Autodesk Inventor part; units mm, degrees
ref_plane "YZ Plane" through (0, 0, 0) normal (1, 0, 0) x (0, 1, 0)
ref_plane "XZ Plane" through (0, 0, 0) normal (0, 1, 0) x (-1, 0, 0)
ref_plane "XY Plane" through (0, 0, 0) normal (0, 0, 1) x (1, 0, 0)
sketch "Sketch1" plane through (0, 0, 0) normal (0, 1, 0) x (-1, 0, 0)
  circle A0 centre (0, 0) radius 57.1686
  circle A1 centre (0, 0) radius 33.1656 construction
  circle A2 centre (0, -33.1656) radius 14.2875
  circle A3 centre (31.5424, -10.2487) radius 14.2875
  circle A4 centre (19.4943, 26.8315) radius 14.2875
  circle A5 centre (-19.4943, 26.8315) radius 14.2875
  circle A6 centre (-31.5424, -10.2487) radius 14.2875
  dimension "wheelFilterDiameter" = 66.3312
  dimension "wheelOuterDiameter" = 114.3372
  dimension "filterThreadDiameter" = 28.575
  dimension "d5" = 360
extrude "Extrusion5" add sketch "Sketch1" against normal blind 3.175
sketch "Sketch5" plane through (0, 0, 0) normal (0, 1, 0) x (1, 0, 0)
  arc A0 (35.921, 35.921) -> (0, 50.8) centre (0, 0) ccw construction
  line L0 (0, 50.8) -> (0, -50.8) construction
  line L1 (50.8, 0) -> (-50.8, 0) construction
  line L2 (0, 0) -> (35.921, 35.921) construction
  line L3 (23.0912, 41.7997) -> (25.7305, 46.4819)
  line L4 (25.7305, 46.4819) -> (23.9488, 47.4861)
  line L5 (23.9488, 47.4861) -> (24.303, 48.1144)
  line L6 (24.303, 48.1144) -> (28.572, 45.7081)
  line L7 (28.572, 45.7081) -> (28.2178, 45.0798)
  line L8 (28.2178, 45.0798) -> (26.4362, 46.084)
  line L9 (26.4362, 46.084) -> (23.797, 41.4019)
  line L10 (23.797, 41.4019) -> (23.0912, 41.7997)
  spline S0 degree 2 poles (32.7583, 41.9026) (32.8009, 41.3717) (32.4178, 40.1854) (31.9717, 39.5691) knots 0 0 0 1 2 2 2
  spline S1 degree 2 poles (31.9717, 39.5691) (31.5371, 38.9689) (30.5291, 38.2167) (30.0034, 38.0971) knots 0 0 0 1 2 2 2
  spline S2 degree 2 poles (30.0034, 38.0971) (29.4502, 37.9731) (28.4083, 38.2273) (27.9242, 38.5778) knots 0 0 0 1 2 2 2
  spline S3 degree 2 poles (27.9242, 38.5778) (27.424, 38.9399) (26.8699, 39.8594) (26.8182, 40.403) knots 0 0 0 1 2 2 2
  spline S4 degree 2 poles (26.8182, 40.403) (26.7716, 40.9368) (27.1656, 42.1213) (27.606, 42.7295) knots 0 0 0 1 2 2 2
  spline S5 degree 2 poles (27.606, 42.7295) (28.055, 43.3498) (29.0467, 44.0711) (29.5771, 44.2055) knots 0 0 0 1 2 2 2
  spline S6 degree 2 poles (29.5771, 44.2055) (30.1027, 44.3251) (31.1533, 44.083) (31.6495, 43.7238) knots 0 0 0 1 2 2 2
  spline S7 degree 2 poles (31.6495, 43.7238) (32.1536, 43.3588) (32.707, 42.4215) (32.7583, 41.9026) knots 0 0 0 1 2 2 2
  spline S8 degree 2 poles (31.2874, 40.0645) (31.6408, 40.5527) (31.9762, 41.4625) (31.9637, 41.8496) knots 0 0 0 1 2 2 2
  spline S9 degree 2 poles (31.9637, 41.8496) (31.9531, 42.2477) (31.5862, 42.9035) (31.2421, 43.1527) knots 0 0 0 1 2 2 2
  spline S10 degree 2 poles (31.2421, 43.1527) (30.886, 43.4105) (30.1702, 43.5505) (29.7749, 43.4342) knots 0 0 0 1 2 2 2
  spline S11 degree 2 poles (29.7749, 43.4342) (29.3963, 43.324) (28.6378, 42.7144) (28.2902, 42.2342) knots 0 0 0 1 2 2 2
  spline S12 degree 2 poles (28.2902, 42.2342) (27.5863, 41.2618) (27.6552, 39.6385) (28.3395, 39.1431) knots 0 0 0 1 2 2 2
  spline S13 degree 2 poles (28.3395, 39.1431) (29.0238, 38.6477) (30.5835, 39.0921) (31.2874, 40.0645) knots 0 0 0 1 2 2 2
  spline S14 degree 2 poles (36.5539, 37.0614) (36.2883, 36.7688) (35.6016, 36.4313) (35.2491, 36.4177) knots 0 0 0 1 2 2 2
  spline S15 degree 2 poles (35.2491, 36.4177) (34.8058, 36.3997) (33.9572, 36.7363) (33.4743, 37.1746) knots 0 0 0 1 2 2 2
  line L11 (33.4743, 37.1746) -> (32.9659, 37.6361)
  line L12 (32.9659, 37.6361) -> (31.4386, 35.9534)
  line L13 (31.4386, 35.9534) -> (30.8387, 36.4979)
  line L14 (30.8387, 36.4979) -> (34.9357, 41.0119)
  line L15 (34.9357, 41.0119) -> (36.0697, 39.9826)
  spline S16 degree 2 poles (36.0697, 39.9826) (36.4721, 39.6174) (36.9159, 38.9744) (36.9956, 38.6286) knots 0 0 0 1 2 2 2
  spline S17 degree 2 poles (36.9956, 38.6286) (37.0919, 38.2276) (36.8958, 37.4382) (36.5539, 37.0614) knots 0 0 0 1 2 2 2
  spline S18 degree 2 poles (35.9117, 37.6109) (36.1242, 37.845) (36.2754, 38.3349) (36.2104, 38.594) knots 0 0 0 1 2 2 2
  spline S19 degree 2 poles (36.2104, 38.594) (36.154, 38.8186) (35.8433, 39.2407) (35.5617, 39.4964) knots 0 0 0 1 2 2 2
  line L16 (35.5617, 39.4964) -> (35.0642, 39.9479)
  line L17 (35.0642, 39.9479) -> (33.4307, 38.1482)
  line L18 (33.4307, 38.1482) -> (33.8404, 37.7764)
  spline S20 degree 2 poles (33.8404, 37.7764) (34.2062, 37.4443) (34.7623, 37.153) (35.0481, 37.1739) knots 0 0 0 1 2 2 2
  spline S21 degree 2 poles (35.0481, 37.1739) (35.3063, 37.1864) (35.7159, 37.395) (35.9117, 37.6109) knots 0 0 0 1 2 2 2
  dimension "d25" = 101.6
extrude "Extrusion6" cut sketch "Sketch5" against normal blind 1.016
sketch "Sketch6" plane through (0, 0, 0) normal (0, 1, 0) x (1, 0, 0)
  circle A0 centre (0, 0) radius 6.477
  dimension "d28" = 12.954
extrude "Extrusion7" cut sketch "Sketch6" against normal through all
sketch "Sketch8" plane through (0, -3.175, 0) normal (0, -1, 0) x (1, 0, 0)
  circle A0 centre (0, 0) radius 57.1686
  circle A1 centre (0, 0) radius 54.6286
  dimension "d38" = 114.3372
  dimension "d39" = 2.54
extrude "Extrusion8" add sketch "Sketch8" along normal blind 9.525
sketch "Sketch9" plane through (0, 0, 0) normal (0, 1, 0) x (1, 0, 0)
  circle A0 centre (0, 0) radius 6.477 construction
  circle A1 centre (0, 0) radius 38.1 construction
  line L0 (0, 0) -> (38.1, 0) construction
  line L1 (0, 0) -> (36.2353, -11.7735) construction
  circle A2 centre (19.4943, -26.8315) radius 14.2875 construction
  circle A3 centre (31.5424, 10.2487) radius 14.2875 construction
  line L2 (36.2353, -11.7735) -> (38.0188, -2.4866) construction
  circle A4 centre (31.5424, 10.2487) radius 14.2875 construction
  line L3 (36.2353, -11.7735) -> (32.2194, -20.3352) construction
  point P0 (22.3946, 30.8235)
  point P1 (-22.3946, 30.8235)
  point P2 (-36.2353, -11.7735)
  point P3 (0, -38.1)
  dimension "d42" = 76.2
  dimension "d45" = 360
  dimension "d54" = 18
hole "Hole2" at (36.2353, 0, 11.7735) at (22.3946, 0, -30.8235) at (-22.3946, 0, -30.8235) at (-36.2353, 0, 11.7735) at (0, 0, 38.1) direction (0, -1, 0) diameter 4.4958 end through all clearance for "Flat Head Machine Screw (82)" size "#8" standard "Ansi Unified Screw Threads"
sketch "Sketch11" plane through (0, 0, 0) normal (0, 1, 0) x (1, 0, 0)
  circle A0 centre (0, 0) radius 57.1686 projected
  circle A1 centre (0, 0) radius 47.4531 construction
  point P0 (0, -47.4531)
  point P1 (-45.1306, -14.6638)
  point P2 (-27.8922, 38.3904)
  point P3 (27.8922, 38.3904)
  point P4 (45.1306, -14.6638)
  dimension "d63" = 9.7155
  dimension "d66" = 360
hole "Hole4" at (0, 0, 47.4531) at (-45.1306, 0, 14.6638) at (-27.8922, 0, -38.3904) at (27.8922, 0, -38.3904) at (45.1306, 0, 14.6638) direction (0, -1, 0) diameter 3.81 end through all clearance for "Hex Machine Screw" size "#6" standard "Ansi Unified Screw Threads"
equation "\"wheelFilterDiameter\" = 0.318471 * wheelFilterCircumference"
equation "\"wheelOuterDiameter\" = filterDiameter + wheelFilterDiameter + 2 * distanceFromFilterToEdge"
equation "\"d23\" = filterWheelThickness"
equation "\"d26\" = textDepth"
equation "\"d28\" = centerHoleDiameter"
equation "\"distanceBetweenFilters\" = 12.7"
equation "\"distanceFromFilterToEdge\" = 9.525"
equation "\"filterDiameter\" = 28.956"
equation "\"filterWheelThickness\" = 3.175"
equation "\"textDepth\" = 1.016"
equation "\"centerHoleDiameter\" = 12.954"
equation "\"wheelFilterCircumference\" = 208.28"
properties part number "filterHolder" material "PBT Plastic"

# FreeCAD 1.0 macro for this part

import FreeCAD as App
import Part
import Sketcher

V = App.Vector
Q = App.Units.Quantity

doc = App.newDocument("Part")
body = doc.addObject("PartDesign::Body", "Body")

# Sketch on XZ plane
sketch1 = body.newObject("Sketcher::SketchObject", "Sketch")
sketch1.AttachmentSupport = (doc.getObject("XZ_Plane"), [""])
sketch1.MapMode = "FlatFace"
sketch1.addGeometry([
    Part.Circle(V(0, 0, 0), V(0, 0, 1), 57),  # 0
    Part.Circle(V(32, -10, 0), V(0, 0, 1), 14),  # 1
    Part.Circle(V(0, -33, 0), V(0, 0, 1), 14),  # 2
    Part.Circle(V(-32, -10, 0), V(0, 0, 1), 14),  # 3
    Part.Circle(V(19, 27, 0), V(0, 0, 1), 14),  # 4
    Part.Circle(V(-19, 27, 0), V(0, 0, 1), 14),  # 5
], False)
sketch1.addConstraint([
    Sketcher.Constraint("Coincident", 0, 3, -1, 1),
    Sketcher.Constraint("Equal", 1, 2),
    Sketcher.Constraint("Equal", 2, 3),
    Sketcher.Constraint("Equal", 3, 4),
    Sketcher.Constraint("Equal", 4, 5),
    Sketcher.Constraint("Symmetric", 1, 3, 3, 3, -2),
    Sketcher.Constraint("Symmetric", 4, 3, 5, 3, -2),
    Sketcher.Constraint("PointOnObject", 2, 3, -2),
    Sketcher.Constraint("Diameter", 1, Q("1.125 in")),
    Sketcher.Constraint("Diameter", 0, 114.3372),
    Sketcher.Constraint("DistanceY", 1, 3, -1, 1, Q("0.4035 in")),
    Sketcher.Constraint("DistanceX", -1, 1, 4, 3, Q("0.7675 in")),
    Sketcher.Constraint("DistanceY", 2, 3, 4, 3, Q("2.3621 in")),
    Sketcher.Constraint("DistanceX", -1, 1, 1, 3, 31.5424),
    Sketcher.Constraint("DistanceY", 2, 3, -1, 1, 33.1656),
])
pad1 = body.newObject("PartDesign::Pad", "Pad")
pad1.Profile = sketch1
pad1.Length = Q("0.125 in")

# Sketch on XZ plane
sketch2 = body.newObject("Sketcher::SketchObject", "Sketch001")
sketch2.AttachmentSupport = (doc.getObject("XZ_Plane"), [""])
sketch2.MapMode = "FlatFace"
sketch2.addGeometry([
    Part.LineSegment(V(25.7305, -46.4819, 0), V(23.0912, -41.7997, 0)),  # 0
    Part.LineSegment(V(23.0912, -41.7997, 0), V(23.797, -41.4019, 0)),  # 1
    Part.LineSegment(V(23.797, -41.4019, 0), V(26.4362, -46.084, 0)),  # 2
    Part.LineSegment(V(26.4362, -46.084, 0), V(28.2178, -45.0798, 0)),  # 3
    Part.LineSegment(V(28.2178, -45.0798, 0), V(28.572, -45.7081, 0)),  # 4
    Part.LineSegment(V(28.572, -45.7081, 0), V(24.303, -48.1144, 0)),  # 5
    Part.LineSegment(V(24.303, -48.1144, 0), V(23.9488, -47.4861, 0)),  # 6
    Part.LineSegment(V(23.9488, -47.4861, 0), V(25.7305, -46.4819, 0)),  # 7
    Part.BSplineCurve([V(32.7583, -41.9026, 0), V(32.8009, -41.3717, 0), V(32.4178, -40.1854, 0), V(31.9717, -39.5691, 0)], [3, 1, 3], [0, 1, 2], False, 2, [1, 1, 1, 1], False),  # 8
    Part.BSplineCurve([V(31.6495, -43.7238, 0), V(32.1536, -43.3588, 0), V(32.707, -42.4215, 0), V(32.7583, -41.9026, 0)], [3, 1, 3], [0, 1, 2], False, 2, [1, 1, 1, 1], False),  # 9
    Part.BSplineCurve([V(29.5771, -44.2055, 0), V(30.1027, -44.3251, 0), V(31.1533, -44.083, 0), V(31.6495, -43.7238, 0)], [3, 1, 3], [0, 1, 2], False, 2, [1, 1, 1, 1], False),  # 10
    Part.BSplineCurve([V(27.606, -42.7295, 0), V(28.055, -43.3498, 0), V(29.0467, -44.0711, 0), V(29.5771, -44.2055, 0)], [3, 1, 3], [0, 1, 2], False, 2, [1, 1, 1, 1], False),  # 11
    Part.BSplineCurve([V(26.8182, -40.403, 0), V(26.7716, -40.9368, 0), V(27.1656, -42.1213, 0), V(27.606, -42.7295, 0)], [3, 1, 3], [0, 1, 2], False, 2, [1, 1, 1, 1], False),  # 12
    Part.BSplineCurve([V(27.9242, -38.5778, 0), V(27.424, -38.9399, 0), V(26.8699, -39.8594, 0), V(26.8182, -40.403, 0)], [3, 1, 3], [0, 1, 2], False, 2, [1, 1, 1, 1], False),  # 13
    Part.BSplineCurve([V(30.0034, -38.0971, 0), V(29.4502, -37.9731, 0), V(28.4083, -38.2273, 0), V(27.9242, -38.5778, 0)], [3, 1, 3], [0, 1, 2], False, 2, [1, 1, 1, 1], False),  # 14
    Part.BSplineCurve([V(31.9717, -39.5691, 0), V(31.5371, -38.9689, 0), V(30.5291, -38.2167, 0), V(30.0034, -38.0971, 0)], [3, 1, 3], [0, 1, 2], False, 2, [1, 1, 1, 1], False),  # 15
    Part.BSplineCurve([V(31.2874, -40.0645, 0), V(31.6408, -40.5527, 0), V(31.9762, -41.4625, 0), V(31.9637, -41.8496, 0)], [3, 1, 3], [0, 1, 2], False, 2, [1, 1, 1, 1], False),  # 16
    Part.BSplineCurve([V(28.3395, -39.1431, 0), V(29.0238, -38.6477, 0), V(30.5835, -39.0921, 0), V(31.2874, -40.0645, 0)], [3, 1, 3], [0, 1, 2], False, 2, [1, 1, 1, 1], False),  # 17
    Part.BSplineCurve([V(28.2902, -42.2342, 0), V(27.5863, -41.2618, 0), V(27.6552, -39.6385, 0), V(28.3395, -39.1431, 0)], [3, 1, 3], [0, 1, 2], False, 2, [1, 1, 1, 1], False),  # 18
    Part.BSplineCurve([V(29.7749, -43.4342, 0), V(29.3963, -43.324, 0), V(28.6378, -42.7144, 0), V(28.2902, -42.2342, 0)], [3, 1, 3], [0, 1, 2], False, 2, [1, 1, 1, 1], False),  # 19
    Part.BSplineCurve([V(31.2421, -43.1527, 0), V(30.886, -43.4105, 0), V(30.1702, -43.5505, 0), V(29.7749, -43.4342, 0)], [3, 1, 3], [0, 1, 2], False, 2, [1, 1, 1, 1], False),  # 20
    Part.BSplineCurve([V(31.9637, -41.8496, 0), V(31.9531, -42.2477, 0), V(31.5862, -42.9035, 0), V(31.2421, -43.1527, 0)], [3, 1, 3], [0, 1, 2], False, 2, [1, 1, 1, 1], False),  # 21
    Part.BSplineCurve([V(36.5539, -37.0614, 0), V(36.2883, -36.7688, 0), V(35.6016, -36.4313, 0), V(35.2491, -36.4177, 0)], [3, 1, 3], [0, 1, 2], False, 2, [1, 1, 1, 1], False),  # 22
    Part.BSplineCurve([V(36.9956, -38.6286, 0), V(37.0919, -38.2276, 0), V(36.8958, -37.4382, 0), V(36.5539, -37.0614, 0)], [3, 1, 3], [0, 1, 2], False, 2, [1, 1, 1, 1], False),  # 23
    Part.BSplineCurve([V(36.0697, -39.9826, 0), V(36.4721, -39.6174, 0), V(36.9159, -38.9744, 0), V(36.9956, -38.6286, 0)], [3, 1, 3], [0, 1, 2], False, 2, [1, 1, 1, 1], False),  # 24
    Part.LineSegment(V(36.0697, -39.9826, 0), V(34.9357, -41.0119, 0)),  # 25
    Part.LineSegment(V(34.9357, -41.0119, 0), V(30.8387, -36.4979, 0)),  # 26
    Part.LineSegment(V(30.8387, -36.4979, 0), V(31.4386, -35.9534, 0)),  # 27
    Part.LineSegment(V(31.4386, -35.9534, 0), V(32.9659, -37.6361, 0)),  # 28
    Part.LineSegment(V(32.9659, -37.6361, 0), V(33.4743, -37.1746, 0)),  # 29
    Part.BSplineCurve([V(35.2491, -36.4177, 0), V(34.8058, -36.3997, 0), V(33.9572, -36.7363, 0), V(33.4743, -37.1746, 0)], [3, 1, 3], [0, 1, 2], False, 2, [1, 1, 1, 1], False),  # 30
    Part.BSplineCurve([V(35.9117, -37.6109, 0), V(36.1242, -37.845, 0), V(36.2754, -38.3349, 0), V(36.2104, -38.594, 0)], [3, 1, 3], [0, 1, 2], False, 2, [1, 1, 1, 1], False),  # 31
    Part.BSplineCurve([V(35.0481, -37.1739, 0), V(35.3063, -37.1864, 0), V(35.7159, -37.395, 0), V(35.9117, -37.6109, 0)], [3, 1, 3], [0, 1, 2], False, 2, [1, 1, 1, 1], False),  # 32
    Part.BSplineCurve([V(33.8404, -37.7764, 0), V(34.2062, -37.4443, 0), V(34.7623, -37.153, 0), V(35.0481, -37.1739, 0)], [3, 1, 3], [0, 1, 2], False, 2, [1, 1, 1, 1], False),  # 33
    Part.LineSegment(V(33.8404, -37.7764, 0), V(33.4307, -38.1482, 0)),  # 34
    Part.LineSegment(V(33.4307, -38.1482, 0), V(35.0642, -39.9479, 0)),  # 35
    Part.LineSegment(V(35.0642, -39.9479, 0), V(35.5617, -39.4964, 0)),  # 36
    Part.BSplineCurve([V(36.2104, -38.594, 0), V(36.154, -38.8186, 0), V(35.8433, -39.2407, 0), V(35.5617, -39.4964, 0)], [3, 1, 3], [0, 1, 2], False, 2, [1, 1, 1, 1], False),  # 37
], False)
sketch2.addConstraint([
    Sketcher.Constraint("Block", 8),
    Sketcher.Constraint("Block", 9),
    Sketcher.Constraint("Block", 10),
    Sketcher.Constraint("Block", 11),
    Sketcher.Constraint("Block", 12),
    Sketcher.Constraint("Block", 13),
    Sketcher.Constraint("Block", 14),
    Sketcher.Constraint("Block", 15),
    Sketcher.Constraint("Block", 16),
    Sketcher.Constraint("Block", 17),
    Sketcher.Constraint("Block", 18),
    Sketcher.Constraint("Block", 19),
    Sketcher.Constraint("Block", 20),
    Sketcher.Constraint("Block", 21),
    Sketcher.Constraint("Block", 22),
    Sketcher.Constraint("Block", 23),
    Sketcher.Constraint("Block", 24),
    Sketcher.Constraint("Block", 30),
    Sketcher.Constraint("Block", 31),
    Sketcher.Constraint("Block", 32),
    Sketcher.Constraint("Block", 33),
    Sketcher.Constraint("Block", 37),
    Sketcher.Constraint("Coincident", 0, 2, 1, 1),
    Sketcher.Constraint("Coincident", 1, 2, 2, 1),
    Sketcher.Constraint("Coincident", 2, 2, 3, 1),
    Sketcher.Constraint("Coincident", 3, 2, 4, 1),
    Sketcher.Constraint("Coincident", 4, 2, 5, 1),
    Sketcher.Constraint("Coincident", 5, 2, 6, 1),
    Sketcher.Constraint("Coincident", 6, 2, 7, 1),
    Sketcher.Constraint("Coincident", 7, 2, 0, 1),
    Sketcher.Constraint("Coincident", 24, 1, 25, 1),
    Sketcher.Constraint("Coincident", 25, 2, 26, 1),
    Sketcher.Constraint("Coincident", 26, 2, 27, 1),
    Sketcher.Constraint("Coincident", 27, 2, 28, 1),
    Sketcher.Constraint("Coincident", 28, 2, 29, 1),
    Sketcher.Constraint("Coincident", 29, 2, 30, 2),
    Sketcher.Constraint("Coincident", 33, 1, 34, 1),
    Sketcher.Constraint("Coincident", 34, 2, 35, 1),
    Sketcher.Constraint("Coincident", 35, 2, 36, 1),
    Sketcher.Constraint("Coincident", 36, 2, 37, 2),
    Sketcher.Constraint("Distance", 26, Q("0.24 in")),
    Sketcher.Constraint("DistanceY", 1, 2, -1, 1, Q("1.63 in")),
    Sketcher.Constraint("DistanceY", 7, 2, -1, 1, Q("1.83 in")),
    Sketcher.Constraint("DistanceY", 6, 2, 4, 2, Q("0.07 in")),
    Sketcher.Constraint("DistanceX", -1, 1, 7, 2, Q("1.013 in")),
    Sketcher.Constraint("DistanceX", 1, 2, 4, 2, Q("0.188 in")),
    Sketcher.Constraint("DistanceX", 4, 2, 28, 2, Q("0.173 in")),
    Sketcher.Constraint("Distance", 0, Q("0.2116 in")),
    Sketcher.Constraint("Distance", 1, Q("0.0319 in")),
    Sketcher.Constraint("Distance", 2, Q("0.2116 in")),
    Sketcher.Constraint("Distance", 4, Q("0.0284 in")),
    Sketcher.Constraint("Distance", 6, Q("0.0284 in")),
    Sketcher.Constraint("Distance", 25, Q("0.0603 in")),
    Sketcher.Constraint("Distance", 27, Q("0.0319 in")),
    Sketcher.Constraint("Distance", 35, Q("0.0957 in")),
    Sketcher.Constraint("DistanceX", -1, 1, 0, 2, Q("0.9091 in")),
    Sketcher.Constraint("DistanceX", -1, 1, 2, 2, Q("1.0408 in")),
    Sketcher.Constraint("DistanceY", 3, 2, -1, 1, Q("1.7748 in")),
    Sketcher.Constraint("DistanceX", -1, 1, 5, 2, Q("0.9568 in")),
    Sketcher.Constraint("DistanceY", 27, 2, -1, 1, Q("1.4155 in")),
    Sketcher.Constraint("DistanceY", 34, 2, -1, 1, Q("1.5019 in")),
    Sketcher.Constraint("DistanceY", 2, 2, 4, 2, Q("0.0148 in")),
    Sketcher.Constraint("DistanceY", 5, 2, 0, 2, Q("0.2486 in")),
    Sketcher.Constraint("DistanceY", 4, 2, 25, 2, Q("0.1849 in")),
    Sketcher.Constraint("DistanceX", 26, 2, 25, 2, Q("0.1613 in")),
    Sketcher.Constraint("DistanceY", 28, 2, 26, 2, Q("0.0448 in")),
    Sketcher.Constraint("DistanceX", 28, 2, 34, 2, Q("0.0183 in")),
    Sketcher.Constraint("DistanceY", 25, 2, 35, 2, Q("0.0419 in")),
])
pocket1 = body.newObject("PartDesign::Pocket", "Pocket")
pocket1.Profile = sketch2
pocket1.Length = Q("0.04 in")
pocket1.Reversed = True

# Sketch on XZ plane
sketch3 = body.newObject("Sketcher::SketchObject", "Sketch002")
sketch3.AttachmentSupport = (doc.getObject("XZ_Plane"), [""])
sketch3.MapMode = "FlatFace"
sketch3.addGeometry(Part.Circle(V(0, 0, 0), V(0, 0, 1), 6), False)
sketch3.addConstraint([
    Sketcher.Constraint("Coincident", 0, 3, -1, 1),
    Sketcher.Constraint("Diameter", 0, Q("0.51 in")),
])
pocket2 = body.newObject("PartDesign::Pocket", "Pocket001")
pocket2.Profile = sketch3
pocket2.Type = "ThroughAll"
pocket2.Reversed = True

# Sketch on XZ plane
sketch4 = body.newObject("Sketcher::SketchObject", "Sketch003")
sketch4.AttachmentSupport = (doc.getObject("XZ_Plane"), [""])
sketch4.MapMode = "FlatFace"
sketch4.AttachmentOffset = App.Placement(V(0, 0, 0.125 * 25.4), App.Rotation())
sketch4.addGeometry([
    Part.Circle(V(0, 0, 0), V(0, 0, 1), 57),
    Part.Circle(V(0, 0, 0), V(0, 0, 1), 55),
], False)
sketch4.addConstraint([
    Sketcher.Constraint("Coincident", 0, 3, -1, 1),
    Sketcher.Constraint("Coincident", 1, 3, -1, 1),
    Sketcher.Constraint("Diameter", 0, 114.3372),
    Sketcher.Constraint("Diameter", 1, 109.2572),
])
pad2 = body.newObject("PartDesign::Pad", "Pad001")
pad2.Profile = sketch4
pad2.Length = Q("0.375 in")

# Sketch on XZ plane
sketch5 = body.newObject("Sketcher::SketchObject", "Sketch004")
sketch5.AttachmentSupport = (doc.getObject("XZ_Plane"), [""])
sketch5.MapMode = "FlatFace"
sketch5.addGeometry([
    Part.Circle(V(36.2, 11.8, 0), V(0, 0, 1), 2.2),  # 0
    Part.Circle(V(22.4, -30.8, 0), V(0, 0, 1), 2.2),  # 1
    Part.Circle(V(-22.4, -30.8, 0), V(0, 0, 1), 2.2),  # 2
    Part.Circle(V(-36.2, 11.8, 0), V(0, 0, 1), 2.2),  # 3
    Part.Circle(V(0, 38.1, 0), V(0, 0, 1), 2.2),  # 4
], False)
sketch5.addConstraint([
    Sketcher.Constraint("Equal", 0, 1),
    Sketcher.Constraint("Equal", 1, 2),
    Sketcher.Constraint("Equal", 2, 3),
    Sketcher.Constraint("Equal", 3, 4),
    Sketcher.Constraint("Symmetric", 1, 3, 2, 3, -2),
    Sketcher.Constraint("Symmetric", 0, 3, 3, 3, -2),
    Sketcher.Constraint("PointOnObject", 4, 3, -2),
    Sketcher.Constraint("Diameter", 0, Q("0.177 in")),
    Sketcher.Constraint("DistanceY", -1, 1, 4, 3, Q("1.5 in")),
    Sketcher.Constraint("DistanceX", 1, 3, 0, 3, Q("0.5449 in")),
    Sketcher.Constraint("DistanceX", -1, 1, 0, 3, 36.2353),
    Sketcher.Constraint("DistanceY", -1, 1, 0, 3, 11.7735),
    Sketcher.Constraint("DistanceY", 1, 3, -1, 1, 30.8235),
])
doc.recompute()
hole = body.newObject("PartDesign::Hole", "Hole")
hole.Profile = sketch5
hole.ThreadType = "None"
hole.Diameter = Q("0.177 in")
hole.DepthType = "ThroughAll"
hole.Reversed = True

# Sketch on XZ plane
sketch6 = body.newObject("Sketcher::SketchObject", "Sketch005")
sketch6.AttachmentSupport = (doc.getObject("XZ_Plane"), [""])
sketch6.MapMode = "FlatFace"
sketch6.addGeometry([
    Part.Circle(V(0, 47.5, 0), V(0, 0, 1), 1.9),  # 0
    Part.Circle(V(-45.1, 14.7, 0), V(0, 0, 1), 1.9),  # 1
    Part.Circle(V(-27.9, -38.4, 0), V(0, 0, 1), 1.9),  # 2
    Part.Circle(V(27.9, -38.4, 0), V(0, 0, 1), 1.9),  # 3
    Part.Circle(V(45.1, 14.7, 0), V(0, 0, 1), 1.9),  # 4
], False)
sketch6.addConstraint([
    Sketcher.Constraint("Equal", 0, 1),
    Sketcher.Constraint("Equal", 1, 2),
    Sketcher.Constraint("Equal", 2, 3),
    Sketcher.Constraint("Equal", 3, 4),
    Sketcher.Constraint("Symmetric", 2, 3, 3, 3, -2),
    Sketcher.Constraint("Symmetric", 1, 3, 4, 3, -2),
    Sketcher.Constraint("PointOnObject", 0, 3, -2),
    Sketcher.Constraint("Diameter", 0, Q("0.15 in")),
    Sketcher.Constraint("DistanceX", 1, 3, -1, 1, Q("1.7768 in")),
    Sketcher.Constraint("DistanceY", -1, 1, 0, 3, 47.453),
    Sketcher.Constraint("DistanceY", -1, 1, 1, 3, 14.6638),
    Sketcher.Constraint("DistanceX", 2, 3, -1, 1, 27.8922),
    Sketcher.Constraint("DistanceY", 2, 3, -1, 1, 38.3904),
])
doc.recompute()
hole2 = body.newObject("PartDesign::Hole", "Hole001")
hole2.Profile = sketch6
hole2.ThreadType = "None"
hole2.Diameter = Q("0.15 in")
hole2.DepthType = "ThroughAll"
hole2.Reversed = True

doc.recompute()
